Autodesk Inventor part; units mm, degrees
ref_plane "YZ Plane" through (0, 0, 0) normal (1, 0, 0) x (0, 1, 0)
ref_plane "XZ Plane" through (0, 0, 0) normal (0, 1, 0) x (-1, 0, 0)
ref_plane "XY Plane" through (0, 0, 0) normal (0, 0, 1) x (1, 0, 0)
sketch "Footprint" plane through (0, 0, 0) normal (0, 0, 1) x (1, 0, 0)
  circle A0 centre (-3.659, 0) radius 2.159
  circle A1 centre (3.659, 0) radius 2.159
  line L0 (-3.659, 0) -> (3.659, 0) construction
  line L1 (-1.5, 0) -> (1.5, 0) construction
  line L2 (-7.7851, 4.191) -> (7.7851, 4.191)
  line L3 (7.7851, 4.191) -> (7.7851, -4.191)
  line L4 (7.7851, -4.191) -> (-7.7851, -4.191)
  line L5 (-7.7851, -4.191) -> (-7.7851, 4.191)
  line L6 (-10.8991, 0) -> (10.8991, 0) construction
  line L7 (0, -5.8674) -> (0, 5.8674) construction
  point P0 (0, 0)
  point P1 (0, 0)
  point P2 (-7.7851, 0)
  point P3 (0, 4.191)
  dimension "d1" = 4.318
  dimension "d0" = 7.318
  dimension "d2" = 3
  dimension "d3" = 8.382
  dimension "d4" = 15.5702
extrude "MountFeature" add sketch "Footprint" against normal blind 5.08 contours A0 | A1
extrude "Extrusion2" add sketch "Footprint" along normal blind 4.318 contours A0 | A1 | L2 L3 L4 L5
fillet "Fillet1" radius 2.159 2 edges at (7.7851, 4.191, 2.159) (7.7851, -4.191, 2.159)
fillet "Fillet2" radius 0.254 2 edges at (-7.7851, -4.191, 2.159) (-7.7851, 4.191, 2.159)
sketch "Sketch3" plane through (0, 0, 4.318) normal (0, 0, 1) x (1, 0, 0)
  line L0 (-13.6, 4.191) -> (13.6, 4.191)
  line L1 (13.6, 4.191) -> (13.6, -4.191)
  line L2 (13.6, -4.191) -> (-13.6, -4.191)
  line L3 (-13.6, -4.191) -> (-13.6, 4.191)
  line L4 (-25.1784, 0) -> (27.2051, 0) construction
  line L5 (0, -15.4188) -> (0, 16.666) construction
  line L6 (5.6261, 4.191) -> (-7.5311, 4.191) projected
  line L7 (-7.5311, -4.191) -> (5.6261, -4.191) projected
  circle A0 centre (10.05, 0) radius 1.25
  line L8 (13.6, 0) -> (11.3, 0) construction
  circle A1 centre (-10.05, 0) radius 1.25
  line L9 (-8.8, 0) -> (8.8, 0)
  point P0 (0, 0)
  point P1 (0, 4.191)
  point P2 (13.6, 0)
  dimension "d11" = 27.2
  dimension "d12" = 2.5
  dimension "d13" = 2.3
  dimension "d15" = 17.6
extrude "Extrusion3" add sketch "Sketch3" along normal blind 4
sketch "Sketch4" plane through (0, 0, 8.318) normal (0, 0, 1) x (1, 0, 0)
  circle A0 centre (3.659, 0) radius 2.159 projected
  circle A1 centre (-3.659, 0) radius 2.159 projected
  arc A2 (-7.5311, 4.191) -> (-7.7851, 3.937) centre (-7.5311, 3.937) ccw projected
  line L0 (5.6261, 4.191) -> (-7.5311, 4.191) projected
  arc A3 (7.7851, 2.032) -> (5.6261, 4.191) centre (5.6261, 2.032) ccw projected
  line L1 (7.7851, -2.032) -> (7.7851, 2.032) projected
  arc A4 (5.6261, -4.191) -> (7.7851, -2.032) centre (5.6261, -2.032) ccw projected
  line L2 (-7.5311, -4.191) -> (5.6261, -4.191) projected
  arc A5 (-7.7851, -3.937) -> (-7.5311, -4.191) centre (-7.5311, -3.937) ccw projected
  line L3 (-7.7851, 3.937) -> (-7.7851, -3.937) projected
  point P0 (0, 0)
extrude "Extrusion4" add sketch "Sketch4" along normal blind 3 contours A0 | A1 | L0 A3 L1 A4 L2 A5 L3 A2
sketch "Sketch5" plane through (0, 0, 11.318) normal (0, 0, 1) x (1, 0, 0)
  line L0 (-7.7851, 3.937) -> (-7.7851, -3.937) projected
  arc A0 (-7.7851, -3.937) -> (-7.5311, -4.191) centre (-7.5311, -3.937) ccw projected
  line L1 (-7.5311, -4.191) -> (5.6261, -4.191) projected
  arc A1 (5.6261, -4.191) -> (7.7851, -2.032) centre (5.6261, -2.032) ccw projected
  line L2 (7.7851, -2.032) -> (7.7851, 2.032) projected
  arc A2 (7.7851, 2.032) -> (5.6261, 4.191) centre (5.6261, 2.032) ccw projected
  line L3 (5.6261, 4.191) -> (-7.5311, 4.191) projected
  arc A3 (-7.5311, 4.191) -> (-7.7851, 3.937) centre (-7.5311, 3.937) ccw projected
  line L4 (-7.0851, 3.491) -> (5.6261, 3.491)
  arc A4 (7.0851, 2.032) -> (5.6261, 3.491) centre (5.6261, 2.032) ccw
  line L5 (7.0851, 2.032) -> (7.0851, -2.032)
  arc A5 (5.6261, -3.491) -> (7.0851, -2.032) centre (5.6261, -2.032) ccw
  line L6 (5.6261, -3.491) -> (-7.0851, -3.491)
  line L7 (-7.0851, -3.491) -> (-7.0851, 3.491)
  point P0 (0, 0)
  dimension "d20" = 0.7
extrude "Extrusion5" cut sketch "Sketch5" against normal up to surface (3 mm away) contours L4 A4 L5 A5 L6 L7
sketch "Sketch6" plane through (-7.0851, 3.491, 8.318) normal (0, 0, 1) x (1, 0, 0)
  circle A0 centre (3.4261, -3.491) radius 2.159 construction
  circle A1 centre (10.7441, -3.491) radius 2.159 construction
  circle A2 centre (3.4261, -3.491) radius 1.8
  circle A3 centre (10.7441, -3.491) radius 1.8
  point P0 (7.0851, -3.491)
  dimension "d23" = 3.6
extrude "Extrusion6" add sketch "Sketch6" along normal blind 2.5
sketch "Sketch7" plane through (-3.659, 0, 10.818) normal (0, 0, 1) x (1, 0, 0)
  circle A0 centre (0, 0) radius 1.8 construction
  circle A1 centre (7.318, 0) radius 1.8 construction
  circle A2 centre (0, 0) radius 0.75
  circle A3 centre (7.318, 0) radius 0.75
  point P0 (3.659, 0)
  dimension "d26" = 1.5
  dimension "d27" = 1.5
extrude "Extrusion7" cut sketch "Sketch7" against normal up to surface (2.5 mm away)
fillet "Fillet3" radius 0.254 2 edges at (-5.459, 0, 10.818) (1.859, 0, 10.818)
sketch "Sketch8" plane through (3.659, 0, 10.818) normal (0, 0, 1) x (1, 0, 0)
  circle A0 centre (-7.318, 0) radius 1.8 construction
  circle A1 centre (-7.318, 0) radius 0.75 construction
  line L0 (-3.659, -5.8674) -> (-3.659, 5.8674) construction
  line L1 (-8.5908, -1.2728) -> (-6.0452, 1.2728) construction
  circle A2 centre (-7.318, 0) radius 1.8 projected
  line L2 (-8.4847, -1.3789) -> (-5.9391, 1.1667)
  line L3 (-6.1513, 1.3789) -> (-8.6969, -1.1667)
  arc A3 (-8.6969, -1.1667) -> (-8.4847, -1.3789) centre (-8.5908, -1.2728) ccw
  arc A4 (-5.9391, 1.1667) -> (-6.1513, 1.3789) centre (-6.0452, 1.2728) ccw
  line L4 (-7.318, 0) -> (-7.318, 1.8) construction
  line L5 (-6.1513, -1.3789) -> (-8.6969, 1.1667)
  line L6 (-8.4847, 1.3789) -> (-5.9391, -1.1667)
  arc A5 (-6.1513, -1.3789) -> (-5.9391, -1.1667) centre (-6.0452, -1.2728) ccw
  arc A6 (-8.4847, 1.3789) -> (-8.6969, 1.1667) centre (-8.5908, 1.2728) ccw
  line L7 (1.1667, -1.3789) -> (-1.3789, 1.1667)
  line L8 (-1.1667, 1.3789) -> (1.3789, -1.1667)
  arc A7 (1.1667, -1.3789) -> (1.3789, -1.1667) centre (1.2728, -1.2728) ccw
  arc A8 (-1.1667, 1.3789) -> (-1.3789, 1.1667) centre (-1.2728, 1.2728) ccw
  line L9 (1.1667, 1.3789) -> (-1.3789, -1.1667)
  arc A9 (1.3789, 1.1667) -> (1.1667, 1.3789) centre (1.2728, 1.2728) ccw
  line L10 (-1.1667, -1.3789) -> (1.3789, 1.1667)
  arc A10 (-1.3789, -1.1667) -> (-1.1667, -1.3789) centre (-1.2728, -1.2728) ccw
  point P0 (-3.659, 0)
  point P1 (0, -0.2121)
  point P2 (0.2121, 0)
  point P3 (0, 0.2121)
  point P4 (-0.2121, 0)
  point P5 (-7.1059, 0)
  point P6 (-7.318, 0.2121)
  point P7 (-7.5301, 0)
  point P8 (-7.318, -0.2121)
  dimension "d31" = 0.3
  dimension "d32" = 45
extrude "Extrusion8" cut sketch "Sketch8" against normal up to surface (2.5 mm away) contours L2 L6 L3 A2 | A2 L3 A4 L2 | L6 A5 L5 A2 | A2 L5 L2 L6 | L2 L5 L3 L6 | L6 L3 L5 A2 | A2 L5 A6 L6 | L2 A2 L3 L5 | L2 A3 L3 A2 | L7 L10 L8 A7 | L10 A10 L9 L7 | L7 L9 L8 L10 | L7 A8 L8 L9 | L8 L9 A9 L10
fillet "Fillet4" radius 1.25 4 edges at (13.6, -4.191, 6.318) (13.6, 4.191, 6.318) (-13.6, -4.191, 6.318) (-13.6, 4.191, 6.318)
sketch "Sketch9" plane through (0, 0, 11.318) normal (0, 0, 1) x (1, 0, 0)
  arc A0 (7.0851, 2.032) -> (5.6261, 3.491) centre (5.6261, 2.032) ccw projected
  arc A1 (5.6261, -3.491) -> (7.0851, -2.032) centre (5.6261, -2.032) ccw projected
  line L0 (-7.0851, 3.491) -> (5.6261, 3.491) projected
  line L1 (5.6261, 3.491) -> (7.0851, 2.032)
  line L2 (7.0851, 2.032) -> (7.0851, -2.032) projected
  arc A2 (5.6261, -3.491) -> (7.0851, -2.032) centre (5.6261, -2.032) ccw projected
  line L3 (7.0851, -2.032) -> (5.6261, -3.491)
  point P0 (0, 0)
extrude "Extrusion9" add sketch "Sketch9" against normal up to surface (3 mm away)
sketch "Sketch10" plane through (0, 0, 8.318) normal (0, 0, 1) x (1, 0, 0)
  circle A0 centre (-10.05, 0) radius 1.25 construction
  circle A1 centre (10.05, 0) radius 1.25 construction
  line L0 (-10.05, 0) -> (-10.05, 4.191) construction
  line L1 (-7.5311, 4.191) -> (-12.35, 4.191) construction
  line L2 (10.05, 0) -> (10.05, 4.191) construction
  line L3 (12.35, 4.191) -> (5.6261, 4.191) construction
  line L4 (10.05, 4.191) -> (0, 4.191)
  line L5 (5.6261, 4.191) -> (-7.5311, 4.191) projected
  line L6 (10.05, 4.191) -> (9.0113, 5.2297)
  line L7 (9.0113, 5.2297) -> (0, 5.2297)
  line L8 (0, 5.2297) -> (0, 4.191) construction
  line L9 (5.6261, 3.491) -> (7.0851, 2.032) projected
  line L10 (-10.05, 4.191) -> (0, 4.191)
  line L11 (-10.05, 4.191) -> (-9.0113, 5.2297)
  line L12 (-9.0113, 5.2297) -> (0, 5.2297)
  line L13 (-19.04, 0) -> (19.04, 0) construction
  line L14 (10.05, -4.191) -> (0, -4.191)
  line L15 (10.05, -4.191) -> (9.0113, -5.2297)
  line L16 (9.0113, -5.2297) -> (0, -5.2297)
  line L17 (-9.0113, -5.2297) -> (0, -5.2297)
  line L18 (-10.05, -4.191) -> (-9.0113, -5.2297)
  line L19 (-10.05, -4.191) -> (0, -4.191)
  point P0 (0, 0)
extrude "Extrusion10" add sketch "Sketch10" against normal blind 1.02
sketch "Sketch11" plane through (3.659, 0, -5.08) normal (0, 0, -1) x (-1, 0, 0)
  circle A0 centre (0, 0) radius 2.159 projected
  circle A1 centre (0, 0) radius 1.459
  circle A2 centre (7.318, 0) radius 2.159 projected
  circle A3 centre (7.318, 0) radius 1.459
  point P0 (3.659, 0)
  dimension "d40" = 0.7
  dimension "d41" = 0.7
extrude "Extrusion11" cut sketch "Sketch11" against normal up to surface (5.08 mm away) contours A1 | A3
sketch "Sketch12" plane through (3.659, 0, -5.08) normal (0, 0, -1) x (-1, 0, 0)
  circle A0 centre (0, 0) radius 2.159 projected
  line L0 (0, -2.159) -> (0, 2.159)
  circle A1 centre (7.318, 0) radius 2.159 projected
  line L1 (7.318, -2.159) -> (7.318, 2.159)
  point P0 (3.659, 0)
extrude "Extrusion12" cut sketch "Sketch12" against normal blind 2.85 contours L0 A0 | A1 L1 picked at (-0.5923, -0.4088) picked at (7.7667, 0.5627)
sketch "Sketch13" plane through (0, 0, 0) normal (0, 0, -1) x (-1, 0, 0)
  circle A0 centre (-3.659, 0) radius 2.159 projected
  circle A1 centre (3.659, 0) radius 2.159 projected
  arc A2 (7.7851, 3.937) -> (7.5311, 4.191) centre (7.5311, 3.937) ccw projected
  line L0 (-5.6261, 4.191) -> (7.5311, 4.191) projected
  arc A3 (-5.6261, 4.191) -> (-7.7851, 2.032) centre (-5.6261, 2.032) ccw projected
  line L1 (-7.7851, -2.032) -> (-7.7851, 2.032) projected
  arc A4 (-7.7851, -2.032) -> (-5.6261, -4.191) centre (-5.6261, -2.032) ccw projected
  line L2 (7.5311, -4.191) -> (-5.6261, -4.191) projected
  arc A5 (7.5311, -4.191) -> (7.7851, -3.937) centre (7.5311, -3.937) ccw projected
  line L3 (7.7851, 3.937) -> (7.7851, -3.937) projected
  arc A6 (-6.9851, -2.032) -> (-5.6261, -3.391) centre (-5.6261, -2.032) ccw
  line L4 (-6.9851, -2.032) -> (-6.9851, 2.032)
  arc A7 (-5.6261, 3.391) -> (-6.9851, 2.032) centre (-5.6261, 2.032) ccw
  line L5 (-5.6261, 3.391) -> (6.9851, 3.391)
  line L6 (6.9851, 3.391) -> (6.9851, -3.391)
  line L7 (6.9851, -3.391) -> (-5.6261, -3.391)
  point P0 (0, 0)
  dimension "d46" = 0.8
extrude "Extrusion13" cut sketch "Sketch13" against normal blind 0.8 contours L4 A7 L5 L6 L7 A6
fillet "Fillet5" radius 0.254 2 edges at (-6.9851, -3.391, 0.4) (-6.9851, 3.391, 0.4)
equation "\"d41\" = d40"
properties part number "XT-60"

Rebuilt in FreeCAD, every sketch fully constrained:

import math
import FreeCAD as App
import Part
import Sketcher
from FreeCAD import Vector
Q = App.Units.Quantity


def edges_at(feature, points):
    """Names of the edges that pass closest to the given points."""
    edges = feature.Shape.Edges
    near = lambda p: min(range(len(edges)), key=lambda i: edges[i].distToShape(Part.Vertex(*p))[0])
    return sorted({f"Edge{near(p) + 1}" for p in points})


def add_polygon(sketch, points):
    """Adds a closed chain of lines whose ends are joined by coincident constraints."""
    first, n = sketch.GeometryCount, len(points)
    for a, b in zip(points, points[1:] + points[:1]):
        sketch.addGeometry(Part.LineSegment(App.Vector(*a, 0), App.Vector(*b, 0)), False)
    for i in range(n):
        sketch.addConstraint(Sketcher.Constraint("Coincident", first + i, 2, first + (i + 1) % n, 1))

doc = App.newDocument("Part")
body = doc.addObject("PartDesign::Body", "Body")
body.AllowCompound = True

# Sketch on XY plane
sketch1 = doc.addObject("Sketcher::SketchObject", "Sketch")
body.addObject(sketch1)
sketch1.AttachmentSupport = (doc.XY_Plane, [""])
sketch1.MapMode = "FlatFace"
sketch1.addGeometry([
    Part.Circle(Vector(-3.659, 0, 0), Vector(0, 0, 1), 2.159),
    Part.Circle(Vector(3.659, 0, 0), Vector(0, 0, 1), 2.159),
], False)
sketch1.addConstraint([
    Sketcher.Constraint("Equal", 0, 1),
    Sketcher.Constraint("Symmetric", 0, 3, 1, 3, -1, 1),
    Sketcher.Constraint("PointOnObject", 0, 3, -1),
    Sketcher.Constraint("Diameter", 0, Q("0.17 in")),
    Sketcher.Constraint("DistanceX", 0, 3, 1, 3, Q("0.2881 in")),
])
pad1 = doc.addObject("PartDesign::Pad", "Pad")
body.addObject(pad1)
pad1.Profile = sketch1
pad1.Length = Q("0.2 in")
pad1.Reversed = True

# Sketch on XY plane
sketch2 = doc.addObject("Sketcher::SketchObject", "Sketch001")
body.addObject(sketch2)
sketch2.AttachmentSupport = (doc.XY_Plane, [""])
sketch2.MapMode = "FlatFace"
add_polygon(sketch2, [(7.7851, 4.191), (-7.7851, 4.191), (-7.7851, -4.191), (7.7851, -4.191)])  # lines 0-3
sketch2.addConstraint([
    Sketcher.Constraint("Horizontal", 0),
    Sketcher.Constraint("Vertical", 1),
    Sketcher.Constraint("Horizontal", 2),
    Sketcher.Constraint("Vertical", 3),
    Sketcher.Constraint("Symmetric", 0, 2, 2, 2, -1, 1),
    Sketcher.Constraint("DistanceY", 1, 2, 1, 1, Q("0.33 in")),
    Sketcher.Constraint("DistanceX", 0, 2, 0, 1, Q("0.613 in")),
])
pad2 = doc.addObject("PartDesign::Pad", "Pad001")
body.addObject(pad2)
pad2.Profile = sketch2
pad2.Length = Q("0.17 in")
doc.recompute()

fillet = doc.addObject("PartDesign::Fillet", "Fillet")
body.addObject(fillet)
fillet.Base = (pad2, edges_at(pad2, [(7.785, 4.191, 2.159), (7.785, -4.191, 2.159)]))
fillet.Radius = Q("0.085 in")
doc.recompute()

fillet2 = doc.addObject("PartDesign::Fillet", "Fillet001")
body.addObject(fillet2)
fillet2.Base = (fillet, edges_at(fillet, [(-7.785, -4.191, 2.159), (-7.785, 4.191, 2.159)]))
fillet2.Radius = Q("0.01 in")

# Sketch on XY plane
sketch3 = doc.addObject("Sketcher::SketchObject", "Sketch002")
body.addObject(sketch3)
sketch3.AttachmentSupport = (doc.XY_Plane, [""])
sketch3.MapMode = "FlatFace"
sketch3.AttachmentOffset = App.Placement(Vector(0, 0, 0.17 * 25.4), App.Rotation())
add_polygon(sketch3, [(13.6, 4.191), (-13.6, 4.191), (-13.6, -4.191), (13.6, -4.191)])  # lines 0-3
sketch3.addGeometry(Part.Circle(Vector(-10.05, 0, 0), Vector(0, 0, 1), 1.25), False)  # 4
sketch3.addGeometry(Part.Circle(Vector(10.05, 0, 0), Vector(0, 0, 1), 1.25), False)  # 5
sketch3.addConstraint([
    Sketcher.Constraint("Horizontal", 0),
    Sketcher.Constraint("Vertical", 1),
    Sketcher.Constraint("Horizontal", 2),
    Sketcher.Constraint("Vertical", 3),
    Sketcher.Constraint("Equal", 4, 5),
    Sketcher.Constraint("Symmetric", 4, 3, 5, 3, -1, 1),
    Sketcher.Constraint("Symmetric", 0, 2, 2, 2, -1, 1),
    Sketcher.Constraint("PointOnObject", 4, 3, -1),
    Sketcher.Constraint("Diameter", 4, 2.5),
    Sketcher.Constraint("DistanceX", 0, 2, 0, 1, 27.2),
    Sketcher.Constraint("DistanceY", 1, 2, 1, 1, Q("0.33 in")),
    Sketcher.Constraint("DistanceX", 0, 2, 5, 3, Q("0.9311 in")),
])
pad3 = doc.addObject("PartDesign::Pad", "Pad002")
body.addObject(pad3)
pad3.Profile = sketch3
pad3.Length = 4

# Sketch on XY plane
sketch4 = doc.addObject("Sketcher::SketchObject", "Sketch003")
body.addObject(sketch4)
sketch4.AttachmentSupport = (doc.XY_Plane, [""])
sketch4.MapMode = "FlatFace"
sketch4.AttachmentOffset = App.Placement(Vector(0, 0, 8.318), App.Rotation())
sketch4.addGeometry([
    Part.LineSegment(Vector(5.6261, 4.191, 0), Vector(-7.5311, 4.191, 0)),  # 0
    Part.ArcOfCircle(Part.Circle(Vector(-7.5311, 3.937, 0), Vector(0, 0, 1), 0.254), math.radians(90), math.radians(180)),  # 1
    Part.LineSegment(Vector(-7.7851, 3.937, 0), Vector(-7.7851, -3.937, 0)),  # 2
    Part.ArcOfCircle(Part.Circle(Vector(-7.5311, -3.937, 0), Vector(0, 0, 1), 0.254), math.radians(180), math.radians(270)),  # 3
    Part.LineSegment(Vector(-7.5311, -4.191, 0), Vector(5.6261, -4.191, 0)),  # 4
    Part.ArcOfCircle(Part.Circle(Vector(5.6261, -2.032, 0), Vector(0, 0, 1), 2.159), math.radians(-90), math.radians(0)),  # 5
    Part.LineSegment(Vector(7.7851, -2.032, 0), Vector(7.7851, 2.032, 0)),  # 6
    Part.ArcOfCircle(Part.Circle(Vector(5.6261, 2.032, 0), Vector(0, 0, 1), 2.159), math.radians(0), math.radians(90)),  # 7
], False)
sketch4.addConstraint([
    Sketcher.Constraint("Tangent", 0, 2, 1, 1),
    Sketcher.Constraint("Tangent", 1, 2, 2, 1),
    Sketcher.Constraint("Tangent", 2, 2, 3, 1),
    Sketcher.Constraint("Tangent", 3, 2, 4, 1),
    Sketcher.Constraint("Tangent", 4, 2, 5, 1),
    Sketcher.Constraint("Tangent", 5, 2, 6, 1),
    Sketcher.Constraint("Tangent", 6, 2, 7, 1),
    Sketcher.Constraint("Tangent", 7, 2, 0, 1),
    Sketcher.Constraint("Horizontal", 0),
    Sketcher.Constraint("Vertical", 2),
    Sketcher.Constraint("Horizontal", 4),
    Sketcher.Constraint("Vertical", 6),
    Sketcher.Constraint("Equal", 1, 3),
    Sketcher.Constraint("Equal", 5, 7),
    Sketcher.Constraint("Radius", 1, Q("0.01 in")),
    Sketcher.Constraint("Radius", 5, Q("0.085 in")),
    Sketcher.Constraint("DistanceY", 2, 2, 2, 1, Q("0.31 in")),
    Sketcher.Constraint("DistanceX", 0, 2, 0, 1, Q("0.518 in")),
    Sketcher.Constraint("DistanceY", 5, 3, -1, 1, Q("0.08 in")),
    Sketcher.Constraint("DistanceX", 1, 3, -1, 1, Q("0.2965 in")),
])
pad4 = doc.addObject("PartDesign::Pad", "Pad003")
body.addObject(pad4)
pad4.Profile = sketch4
pad4.Length = Q("0.1181102 in")

# Sketch on XY plane
sketch5 = doc.addObject("Sketcher::SketchObject", "Sketch004")
body.addObject(sketch5)
sketch5.AttachmentSupport = (doc.XY_Plane, [""])
sketch5.MapMode = "FlatFace"
sketch5.AttachmentOffset = App.Placement(Vector(0, 0, 0.4455906 * 25.4), App.Rotation())
sketch5.addGeometry([
    Part.LineSegment(Vector(5.6261, 3.491, 0), Vector(-7.0851, 3.491, 0)),  # 0
    Part.LineSegment(Vector(-7.0851, 3.491, 0), Vector(-7.0851, -3.491, 0)),  # 1
    Part.LineSegment(Vector(-7.0851, -3.491, 0), Vector(5.6261, -3.491, 0)),  # 2
    Part.ArcOfCircle(Part.Circle(Vector(5.6261, -2.032, 0), Vector(0, 0, 1), 1.459), math.radians(-90), math.radians(0)),  # 3
    Part.LineSegment(Vector(7.0851, -2.032, 0), Vector(7.0851, 2.032, 0)),  # 4
    Part.ArcOfCircle(Part.Circle(Vector(5.6261, 2.032, 0), Vector(0, 0, 1), 1.459), math.radians(0), math.radians(90)),  # 5
], False)
sketch5.addConstraint([
    Sketcher.Constraint("Coincident", 0, 2, 1, 1),
    Sketcher.Constraint("Coincident", 1, 2, 2, 1),
    Sketcher.Constraint("Tangent", 2, 2, 3, 1),
    Sketcher.Constraint("Tangent", 3, 2, 4, 1),
    Sketcher.Constraint("Tangent", 4, 2, 5, 1),
    Sketcher.Constraint("Tangent", 5, 2, 0, 1),
    Sketcher.Constraint("Horizontal", 0),
    Sketcher.Constraint("Vertical", 1),
    Sketcher.Constraint("Horizontal", 2),
    Sketcher.Constraint("Vertical", 4),
    Sketcher.Constraint("Equal", 3, 5),
    Sketcher.Constraint("DistanceY", 4, 1, 4, 2, Q("0.16 in")),
    Sketcher.Constraint("DistanceY", 3, 3, -1, 1, Q("0.08 in")),
    Sketcher.Constraint("Radius", 3, 1.459),
    Sketcher.Constraint("DistanceX", 0, 2, 0, 1, 12.7112),
    Sketcher.Constraint("DistanceX", -1, 1, 3, 3, Q("0.2215 in")),
])
pocket1 = doc.addObject("PartDesign::Pocket", "Pocket")
body.addObject(pocket1)
pocket1.Profile = sketch5
pocket1.Length = Q("0.1181102 in")

# Sketch on XY plane
sketch6 = doc.addObject("Sketcher::SketchObject", "Sketch005")
body.addObject(sketch6)
sketch6.AttachmentSupport = (doc.XY_Plane, [""])
sketch6.MapMode = "FlatFace"
sketch6.AttachmentOffset = App.Placement(Vector(0, 0, 8.318), App.Rotation())
sketch6.addGeometry([
    Part.Circle(Vector(-3.659, 0, 0), Vector(0, 0, 1), 1.8),
    Part.Circle(Vector(3.659, 0, 0), Vector(0, 0, 1), 1.8),
], False)
sketch6.addConstraint([
    Sketcher.Constraint("Equal", 0, 1),
    Sketcher.Constraint("Symmetric", 0, 3, 1, 3, -1, 1),
    Sketcher.Constraint("PointOnObject", 0, 3, -1),
    Sketcher.Constraint("Diameter", 0, 3.6),
    Sketcher.Constraint("DistanceX", 0, 3, 1, 3, Q("0.2881 in")),
])
pad5 = doc.addObject("PartDesign::Pad", "Pad004")
body.addObject(pad5)
pad5.Profile = sketch6
pad5.Length = 2.5

# Sketch on XY plane
sketch7 = doc.addObject("Sketcher::SketchObject", "Sketch006")
body.addObject(sketch7)
sketch7.AttachmentSupport = (doc.XY_Plane, [""])
sketch7.MapMode = "FlatFace"
sketch7.AttachmentOffset = App.Placement(Vector(0, 0, 0.4259055 * 25.4), App.Rotation())
sketch7.addGeometry([
    Part.Circle(Vector(-3.659, 0, 0), Vector(0, 0, 1), 0.75),
    Part.Circle(Vector(3.659, 0, 0), Vector(0, 0, 1), 0.75),
], False)
sketch7.addConstraint([
    Sketcher.Constraint("Equal", 0, 1),
    Sketcher.Constraint("Symmetric", 0, 3, 1, 3, -1, 1),
    Sketcher.Constraint("PointOnObject", 0, 3, -1),
    Sketcher.Constraint("Diameter", 0, 1.5),
    Sketcher.Constraint("DistanceX", 0, 3, 1, 3, Q("0.2881 in")),
])
pocket2 = doc.addObject("PartDesign::Pocket", "Pocket001")
body.addObject(pocket2)
pocket2.Profile = sketch7
pocket2.Length = 2.5
doc.recompute()

fillet3 = doc.addObject("PartDesign::Fillet", "Fillet002")
body.addObject(fillet3)
fillet3.Base = (pocket2, edges_at(pocket2, [(-5.459, 0, 10.818), (1.859, 0, 10.818)]))
fillet3.Radius = Q("0.01 in")

# Sketch on XY plane
sketch8 = doc.addObject("Sketcher::SketchObject", "Sketch007")
body.addObject(sketch8)
sketch8.AttachmentSupport = (doc.XY_Plane, [""])
sketch8.MapMode = "FlatFace"
sketch8.AttachmentOffset = App.Placement(Vector(0, 0, 0.4259055 * 25.4), App.Rotation())
sketch8.addGeometry([
    Part.LineSegment(Vector(-3.4468, 0, 0), Vector(-2.2801, 1.1667, 0)),  # 0
    Part.ArcOfCircle(Part.Circle(Vector(-2.3862, 1.2728, 0), Vector(0, 0, 1), 0.150048), math.radians(-45), math.radians(135)),  # 1
    Part.LineSegment(Vector(-2.4923, 1.3789, 0), Vector(-3.659, 0.2122, 0)),  # 2
    Part.LineSegment(Vector(-3.659, 0.2122, 0), Vector(-4.8257, 1.3789, 0)),  # 3
    Part.ArcOfCircle(Part.Circle(Vector(-4.9318, 1.2728, 0), Vector(0, 0, 1), 0.150048), math.radians(45), math.radians(225)),  # 4
    Part.LineSegment(Vector(-5.0379, 1.1667, 0), Vector(-3.8712, 0, 0)),  # 5
    Part.LineSegment(Vector(-3.8712, 0, 0), Vector(-5.0379, -1.1667, 0)),  # 6
    Part.ArcOfCircle(Part.Circle(Vector(-4.9318, -1.2728, 0), Vector(0, 0, 1), 0.150048), math.radians(135), math.radians(315)),  # 7
    Part.LineSegment(Vector(-4.8257, -1.3789, 0), Vector(-3.659, -0.2122, 0)),  # 8
    Part.LineSegment(Vector(-3.659, -0.2122, 0), Vector(-2.4923, -1.3789, 0)),  # 9
    Part.ArcOfCircle(Part.Circle(Vector(-2.3862, -1.2728, 0), Vector(0, 0, 1), 0.150048), math.radians(-135), math.radians(45)),  # 10
    Part.LineSegment(Vector(-2.2801, -1.1667, 0), Vector(-3.4468, 0, 0)),  # 11
    Part.LineSegment(Vector(3.659, -0.2122, 0), Vector(4.8257, -1.3789, 0)),  # 12
    Part.ArcOfCircle(Part.Circle(Vector(4.9318, -1.2728, 0), Vector(0, 0, 1), 0.150048), math.radians(-135), math.radians(45)),  # 13
    Part.LineSegment(Vector(5.0379, -1.1667, 0), Vector(3.8712, 0, 0)),  # 14
    Part.LineSegment(Vector(3.8712, 0, 0), Vector(5.0379, 1.1667, 0)),  # 15
    Part.ArcOfCircle(Part.Circle(Vector(4.9318, 1.2728, 0), Vector(0, 0, 1), 0.150048), math.radians(-45), math.radians(135)),  # 16
    Part.LineSegment(Vector(4.8257, 1.3789, 0), Vector(3.659, 0.2122, 0)),  # 17
    Part.LineSegment(Vector(3.659, 0.2122, 0), Vector(2.4923, 1.3789, 0)),  # 18
    Part.ArcOfCircle(Part.Circle(Vector(2.3862, 1.2728, 0), Vector(0, 0, 1), 0.150048), math.radians(45), math.radians(225)),  # 19
    Part.LineSegment(Vector(2.2801, 1.1667, 0), Vector(3.4468, 0, 0)),  # 20
    Part.LineSegment(Vector(3.4468, 0, 0), Vector(2.2801, -1.1667, 0)),  # 21
    Part.ArcOfCircle(Part.Circle(Vector(2.3862, -1.2728, 0), Vector(0, 0, 1), 0.150048), math.radians(135), math.radians(315)),  # 22
    Part.LineSegment(Vector(2.4923, -1.3789, 0), Vector(3.659, -0.2122, 0)),  # 23
], False)
sketch8.addConstraint([
    Sketcher.Constraint("Tangent", 0, 2, 1, 1),
    Sketcher.Constraint("Tangent", 1, 2, 2, 1),
    Sketcher.Constraint("Coincident", 2, 2, 3, 1),
    Sketcher.Constraint("Tangent", 3, 2, 4, 1),
    Sketcher.Constraint("Tangent", 4, 2, 5, 1),
    Sketcher.Constraint("Coincident", 5, 2, 6, 1),
    Sketcher.Constraint("Tangent", 6, 2, 7, 1),
    Sketcher.Constraint("Tangent", 7, 2, 8, 1),
    Sketcher.Constraint("Coincident", 8, 2, 9, 1),
    Sketcher.Constraint("Tangent", 9, 2, 10, 1),
    Sketcher.Constraint("Tangent", 10, 2, 11, 1),
    Sketcher.Constraint("Coincident", 11, 2, 0, 1),
    Sketcher.Constraint("Tangent", 12, 2, 13, 1),
    Sketcher.Constraint("Tangent", 13, 2, 14, 1),
    Sketcher.Constraint("Coincident", 14, 2, 15, 1),
    Sketcher.Constraint("Tangent", 15, 2, 16, 1),
    Sketcher.Constraint("Tangent", 16, 2, 17, 1),
    Sketcher.Constraint("Coincident", 17, 2, 18, 1),
    Sketcher.Constraint("Tangent", 18, 2, 19, 1),
    Sketcher.Constraint("Tangent", 19, 2, 20, 1),
    Sketcher.Constraint("Coincident", 20, 2, 21, 1),
    Sketcher.Constraint("Tangent", 21, 2, 22, 1),
    Sketcher.Constraint("Tangent", 22, 2, 23, 1),
    Sketcher.Constraint("Coincident", 23, 2, 12, 1),
    Sketcher.Constraint("Equal", 1, 4),
    Sketcher.Constraint("Equal", 4, 7),
    Sketcher.Constraint("Equal", 7, 10),
    Sketcher.Constraint("Equal", 10, 13),
    Sketcher.Constraint("Equal", 13, 16),
    Sketcher.Constraint("Equal", 16, 19),
    Sketcher.Constraint("Equal", 19, 22),
    Sketcher.Constraint("Symmetric", 4, 3, 13, 3, -1, 1),
    Sketcher.Constraint("Symmetric", 7, 3, 16, 3, -1, 1),
    Sketcher.Constraint("Symmetric", 10, 3, 19, 3, -1, 1),
    Sketcher.Constraint("Symmetric", 1, 3, 22, 3, -1, 1),
    Sketcher.Constraint("Symmetric", 5, 2, 14, 2, -1, 1),
    Sketcher.Constraint("Symmetric", 8, 2, 17, 2, -1, 1),
    Sketcher.Constraint("Symmetric", 11, 2, 20, 2, -1, 1),
    Sketcher.Constraint("Symmetric", 2, 2, 23, 2, -1, 1),
    Sketcher.Constraint("Symmetric", 7, 3, 13, 3, -2),
    Sketcher.Constraint("Symmetric", 1, 3, 19, 3, -2),
    Sketcher.Constraint("Symmetric", 2, 2, 17, 2, -2),
    Sketcher.Constraint("PointOnObject", 5, 2, -1),
    Sketcher.Constraint("PointOnObject", 11, 2, -1),
    Sketcher.Constraint("Parallel", 0, 2),
    Sketcher.Constraint("Perpendicular", 2, 3),
    Sketcher.Constraint("Parallel", 3, 5),
    Sketcher.Constraint("Perpendicular", 5, 6),
    Sketcher.Constraint("Horizontal", 1, 3, 4, 3),
    Sketcher.Constraint("Equal", 0, 2),
    Sketcher.Constraint("Radius", 1, Q("0.0059 in")),
    Sketcher.Constraint("DistanceX", 3, 2, -1, 1, Q("0.19 in")),
    Sketcher.Constraint("DistanceY", -1, 1, 1, 3, Q("0.0501 in")),
])
pocket3 = doc.addObject("PartDesign::Pocket", "Pocket002")
body.addObject(pocket3)
pocket3.Profile = sketch8
pocket3.Length = 2.5
doc.recompute()

fillet4 = doc.addObject("PartDesign::Fillet", "Fillet003")
body.addObject(fillet4)
fillet4.Base = (pocket3, edges_at(pocket3, [
    (13.6, -4.191, 6.318),
    (13.6, 4.191, 6.318),
    (-13.6, -4.191, 6.318),
    (-13.6, 4.191, 6.318),
]))
fillet4.Radius = 1.25

# Sketch on XY plane
sketch9 = doc.addObject("Sketcher::SketchObject", "Sketch008")
body.addObject(sketch9)
sketch9.AttachmentSupport = (doc.XY_Plane, [""])
sketch9.MapMode = "FlatFace"
sketch9.AttachmentOffset = App.Placement(Vector(0, 0, 0.4455906 * 25.4), App.Rotation())
sketch9.addGeometry([
    Part.LineSegment(Vector(5.6261, 3.491, 0), Vector(7.0851, 2.032, 0)),
    Part.ArcOfCircle(Part.Circle(Vector(5.6261, 2.032, 0), Vector(0, 0, 1), 1.459), math.radians(0), math.radians(90)),
    Part.ArcOfCircle(Part.Circle(Vector(5.6261, -2.032, 0), Vector(0, 0, 1), 1.459), math.radians(-90), math.radians(0)),
    Part.LineSegment(Vector(7.0851, -2.032, 0), Vector(5.6261, -3.491, 0)),
], False)
sketch9.addConstraint([
    Sketcher.Constraint("Coincident", 0, 1, 1, 2),
    Sketcher.Constraint("Coincident", 1, 1, 0, 2),
    Sketcher.Constraint("Coincident", 2, 1, 3, 2),
    Sketcher.Constraint("Coincident", 3, 1, 2, 2),
    Sketcher.Constraint("Equal", 1, 2),
    Sketcher.Constraint("Symmetric", 1, 3, 2, 3, -1),
    Sketcher.Constraint("Perpendicular", 0, 3),
    Sketcher.Constraint("Horizontal", 2, 3, 3, 1),
    Sketcher.Constraint("Vertical", 2, 3, 0, 1),
    Sketcher.Constraint("Vertical", 0, 1, 2, 1),
    Sketcher.Constraint("DistanceY", -1, 1, 1, 3, Q("0.08 in")),
    Sketcher.Constraint("Radius", 1, 1.459),
    Sketcher.Constraint("DistanceX", -1, 1, 1, 3, Q("0.2215 in")),
])
pad6 = doc.addObject("PartDesign::Pad", "Pad005")
body.addObject(pad6)
pad6.Profile = sketch9
pad6.Length = Q("0.1181102 in")
pad6.Reversed = True

# Sketch on XY plane
sketch10 = doc.addObject("Sketcher::SketchObject", "Sketch009")
body.addObject(sketch10)
sketch10.AttachmentSupport = (doc.XY_Plane, [""])
sketch10.MapMode = "FlatFace"
sketch10.AttachmentOffset = App.Placement(Vector(0, 0, 8.318), App.Rotation())
add_polygon(sketch10, [(-10.05, 4.191), (10.05, 4.191), (9.0113, 5.2297), (-9.0113, 5.2297)])  # lines 0-3
add_polygon(sketch10, [(9.0113, -5.2297), (10.05, -4.191), (-10.05, -4.191), (-9.0113, -5.2297)])  # lines 4-7
sketch10.addConstraint([
    Sketcher.Constraint("Horizontal", 0),
    Sketcher.Constraint("Horizontal", 2),
    Sketcher.Constraint("Horizontal", 5),
    Sketcher.Constraint("Horizontal", 7),
    Sketcher.Constraint("Symmetric", 3, 2, 4, 2, -1, 1),
    Sketcher.Constraint("Symmetric", 1, 2, 6, 2, -1, 1),
    Sketcher.Constraint("Perpendicular", 1, 3),
    Sketcher.Constraint("Parallel", 3, 4),
    Sketcher.Constraint("Perpendicular", 4, 6),
    Sketcher.Constraint("Vertical", 0, 2, 4, 2),
    Sketcher.Constraint("Vertical", 2, 2, 6, 2),
    Sketcher.Constraint("DistanceY", 4, 2, 0, 2, Q("0.33 in")),
    Sketcher.Constraint("DistanceX", 0, 1, 0, 2, 20.1),
    Sketcher.Constraint("DistanceX", 2, 2, 2, 1, 18.0226),
])
pad7 = doc.addObject("PartDesign::Pad", "Pad006")
body.addObject(pad7)
pad7.Profile = sketch10
pad7.Length = 1.02
pad7.Reversed = True

# Sketch on XY plane
sketch11 = doc.addObject("Sketcher::SketchObject", "Sketch010")
body.addObject(sketch11)
sketch11.AttachmentSupport = (doc.XY_Plane, [""])
sketch11.MapMode = "FlatFace"
sketch11.AttachmentOffset = App.Placement(Vector(0, 0, -0.2 * 25.4), App.Rotation())
sketch11.addGeometry([
    Part.Circle(Vector(3.659, 0, 0), Vector(0, 0, 1), 1.459),
    Part.Circle(Vector(-3.659, 0, 0), Vector(0, 0, 1), 1.459),
], False)
sketch11.addConstraint([
    Sketcher.Constraint("Equal", 0, 1),
    Sketcher.Constraint("Symmetric", 0, 3, 1, 3, -1, 1),
    Sketcher.Constraint("PointOnObject", 0, 3, -1),
    Sketcher.Constraint("Diameter", 0, 2.918),
    Sketcher.Constraint("DistanceX", 1, 3, 0, 3, Q("0.2881 in")),
])
pocket4 = doc.addObject("PartDesign::Pocket", "Pocket003")
body.addObject(pocket4)
pocket4.Profile = sketch11
pocket4.Length = Q("0.2 in")
pocket4.Reversed = True

# Sketch on XY plane
sketch12 = doc.addObject("Sketcher::SketchObject", "Sketch011")
body.addObject(sketch12)
sketch12.AttachmentSupport = (doc.XY_Plane, [""])
sketch12.MapMode = "FlatFace"
sketch12.AttachmentOffset = App.Placement(Vector(0, 0, -0.2 * 25.4), App.Rotation())
sketch12.addGeometry([
    Part.LineSegment(Vector(3.659, -2.159, 0), Vector(3.659, 2.159, 0)),
    Part.ArcOfCircle(Part.Circle(Vector(3.659, 0, 0), Vector(0, 0, 1), 2.159), math.radians(-90), math.radians(90)),
    Part.ArcOfCircle(Part.Circle(Vector(-3.659, 0, 0), Vector(0, 0, 1), 2.159), math.radians(90), math.radians(270)),
    Part.LineSegment(Vector(-3.659, 2.159, 0), Vector(-3.659, -2.159, 0)),
], False)
sketch12.addConstraint([
    Sketcher.Constraint("Coincident", 0, 1, 1, 1),
    Sketcher.Constraint("Coincident", 1, 2, 0, 2),
    Sketcher.Constraint("Coincident", 2, 1, 3, 1),
    Sketcher.Constraint("Coincident", 3, 2, 2, 2),
    Sketcher.Constraint("Vertical", 0),
    Sketcher.Constraint("Vertical", 3),
    Sketcher.Constraint("Equal", 1, 2),
    Sketcher.Constraint("Symmetric", 1, 3, 2, 3, -1, 1),
    Sketcher.Constraint("Symmetric", 1, 2, 2, 1, -2),
    Sketcher.Constraint("Vertical", 1, 3, 0, 1),
    Sketcher.Constraint("Radius", 1, Q("0.085 in")),
    Sketcher.Constraint("DistanceX", 2, 3, 1, 3, Q("0.2881 in")),
])
pocket5 = doc.addObject("PartDesign::Pocket", "Pocket004")
body.addObject(pocket5)
pocket5.Profile = sketch12
pocket5.Length = Q("0.1122047 in")
pocket5.Reversed = True

# Sketch on XY plane
sketch13 = doc.addObject("Sketcher::SketchObject", "Sketch012")
body.addObject(sketch13)
sketch13.AttachmentSupport = (doc.XY_Plane, [""])
sketch13.MapMode = "FlatFace"
sketch13.addGeometry([
    Part.LineSegment(Vector(6.9851, 2.032, 0), Vector(6.9851, -2.032, 0)),  # 0
    Part.ArcOfCircle(Part.Circle(Vector(5.6261, -2.032, 0), Vector(0, 0, 1), 1.359), math.radians(-90), math.radians(0)),  # 1
    Part.LineSegment(Vector(5.6261, -3.391, 0), Vector(-6.9851, -3.391, 0)),  # 2
    Part.LineSegment(Vector(-6.9851, -3.391, 0), Vector(-6.9851, 3.391, 0)),  # 3
    Part.LineSegment(Vector(-6.9851, 3.391, 0), Vector(5.6261, 3.391, 0)),  # 4
    Part.ArcOfCircle(Part.Circle(Vector(5.6261, 2.032, 0), Vector(0, 0, 1), 1.359), math.radians(0), math.radians(90)),  # 5
    Part.Circle(Vector(3.659, 0, 0), Vector(0, 0, 1), 2.159),  # 6
    Part.Circle(Vector(-3.659, 0, 0), Vector(0, 0, 1), 2.159),  # 7
], False)
sketch13.addConstraint([
    Sketcher.Constraint("Tangent", 0, 2, 1, 2),
    Sketcher.Constraint("Tangent", 1, 1, 2, 1),
    Sketcher.Constraint("Coincident", 2, 2, 3, 1),
    Sketcher.Constraint("Coincident", 3, 2, 4, 1),
    Sketcher.Constraint("Tangent", 4, 2, 5, 2),
    Sketcher.Constraint("Tangent", 5, 1, 0, 1),
    Sketcher.Constraint("Vertical", 0),
    Sketcher.Constraint("Horizontal", 2),
    Sketcher.Constraint("Vertical", 3),
    Sketcher.Constraint("Horizontal", 4),
    Sketcher.Constraint("Equal", 1, 5),
    Sketcher.Constraint("Equal", 6, 7),
    Sketcher.Constraint("Symmetric", 6, 3, 7, 3, -1, 1),
    Sketcher.Constraint("PointOnObject", 6, 3, -1),
    Sketcher.Constraint("Diameter", 6, Q("0.17 in")),
    Sketcher.Constraint("DistanceY", 0, 2, 0, 1, Q("0.16 in")),
    Sketcher.Constraint("Radius", 1, Q("0.0535 in")),
    Sketcher.Constraint("DistanceY", 1, 3, -1, 1, Q("0.08 in")),
    Sketcher.Constraint("DistanceX", 2, 2, 2, 1, Q("0.4965 in")),
    Sketcher.Constraint("DistanceX", -1, 1, 0, 2, Q("0.275 in")),
    Sketcher.Constraint("DistanceX", 7, 3, 6, 3, Q("0.2881 in")),
])
pocket6 = doc.addObject("PartDesign::Pocket", "Pocket005")
body.addObject(pocket6)
pocket6.Profile = sketch13
pocket6.Length = Q("0.0314961 in")
pocket6.Reversed = True
doc.recompute()

fillet5 = doc.addObject("PartDesign::Fillet", "Fillet004")
body.addObject(fillet5)
fillet5.Base = (pocket6, edges_at(pocket6, [(-6.985, -3.391, 0.4), (-6.985, 3.391, 0.4)]))
fillet5.Radius = Q("0.01 in")

doc.recompute()
